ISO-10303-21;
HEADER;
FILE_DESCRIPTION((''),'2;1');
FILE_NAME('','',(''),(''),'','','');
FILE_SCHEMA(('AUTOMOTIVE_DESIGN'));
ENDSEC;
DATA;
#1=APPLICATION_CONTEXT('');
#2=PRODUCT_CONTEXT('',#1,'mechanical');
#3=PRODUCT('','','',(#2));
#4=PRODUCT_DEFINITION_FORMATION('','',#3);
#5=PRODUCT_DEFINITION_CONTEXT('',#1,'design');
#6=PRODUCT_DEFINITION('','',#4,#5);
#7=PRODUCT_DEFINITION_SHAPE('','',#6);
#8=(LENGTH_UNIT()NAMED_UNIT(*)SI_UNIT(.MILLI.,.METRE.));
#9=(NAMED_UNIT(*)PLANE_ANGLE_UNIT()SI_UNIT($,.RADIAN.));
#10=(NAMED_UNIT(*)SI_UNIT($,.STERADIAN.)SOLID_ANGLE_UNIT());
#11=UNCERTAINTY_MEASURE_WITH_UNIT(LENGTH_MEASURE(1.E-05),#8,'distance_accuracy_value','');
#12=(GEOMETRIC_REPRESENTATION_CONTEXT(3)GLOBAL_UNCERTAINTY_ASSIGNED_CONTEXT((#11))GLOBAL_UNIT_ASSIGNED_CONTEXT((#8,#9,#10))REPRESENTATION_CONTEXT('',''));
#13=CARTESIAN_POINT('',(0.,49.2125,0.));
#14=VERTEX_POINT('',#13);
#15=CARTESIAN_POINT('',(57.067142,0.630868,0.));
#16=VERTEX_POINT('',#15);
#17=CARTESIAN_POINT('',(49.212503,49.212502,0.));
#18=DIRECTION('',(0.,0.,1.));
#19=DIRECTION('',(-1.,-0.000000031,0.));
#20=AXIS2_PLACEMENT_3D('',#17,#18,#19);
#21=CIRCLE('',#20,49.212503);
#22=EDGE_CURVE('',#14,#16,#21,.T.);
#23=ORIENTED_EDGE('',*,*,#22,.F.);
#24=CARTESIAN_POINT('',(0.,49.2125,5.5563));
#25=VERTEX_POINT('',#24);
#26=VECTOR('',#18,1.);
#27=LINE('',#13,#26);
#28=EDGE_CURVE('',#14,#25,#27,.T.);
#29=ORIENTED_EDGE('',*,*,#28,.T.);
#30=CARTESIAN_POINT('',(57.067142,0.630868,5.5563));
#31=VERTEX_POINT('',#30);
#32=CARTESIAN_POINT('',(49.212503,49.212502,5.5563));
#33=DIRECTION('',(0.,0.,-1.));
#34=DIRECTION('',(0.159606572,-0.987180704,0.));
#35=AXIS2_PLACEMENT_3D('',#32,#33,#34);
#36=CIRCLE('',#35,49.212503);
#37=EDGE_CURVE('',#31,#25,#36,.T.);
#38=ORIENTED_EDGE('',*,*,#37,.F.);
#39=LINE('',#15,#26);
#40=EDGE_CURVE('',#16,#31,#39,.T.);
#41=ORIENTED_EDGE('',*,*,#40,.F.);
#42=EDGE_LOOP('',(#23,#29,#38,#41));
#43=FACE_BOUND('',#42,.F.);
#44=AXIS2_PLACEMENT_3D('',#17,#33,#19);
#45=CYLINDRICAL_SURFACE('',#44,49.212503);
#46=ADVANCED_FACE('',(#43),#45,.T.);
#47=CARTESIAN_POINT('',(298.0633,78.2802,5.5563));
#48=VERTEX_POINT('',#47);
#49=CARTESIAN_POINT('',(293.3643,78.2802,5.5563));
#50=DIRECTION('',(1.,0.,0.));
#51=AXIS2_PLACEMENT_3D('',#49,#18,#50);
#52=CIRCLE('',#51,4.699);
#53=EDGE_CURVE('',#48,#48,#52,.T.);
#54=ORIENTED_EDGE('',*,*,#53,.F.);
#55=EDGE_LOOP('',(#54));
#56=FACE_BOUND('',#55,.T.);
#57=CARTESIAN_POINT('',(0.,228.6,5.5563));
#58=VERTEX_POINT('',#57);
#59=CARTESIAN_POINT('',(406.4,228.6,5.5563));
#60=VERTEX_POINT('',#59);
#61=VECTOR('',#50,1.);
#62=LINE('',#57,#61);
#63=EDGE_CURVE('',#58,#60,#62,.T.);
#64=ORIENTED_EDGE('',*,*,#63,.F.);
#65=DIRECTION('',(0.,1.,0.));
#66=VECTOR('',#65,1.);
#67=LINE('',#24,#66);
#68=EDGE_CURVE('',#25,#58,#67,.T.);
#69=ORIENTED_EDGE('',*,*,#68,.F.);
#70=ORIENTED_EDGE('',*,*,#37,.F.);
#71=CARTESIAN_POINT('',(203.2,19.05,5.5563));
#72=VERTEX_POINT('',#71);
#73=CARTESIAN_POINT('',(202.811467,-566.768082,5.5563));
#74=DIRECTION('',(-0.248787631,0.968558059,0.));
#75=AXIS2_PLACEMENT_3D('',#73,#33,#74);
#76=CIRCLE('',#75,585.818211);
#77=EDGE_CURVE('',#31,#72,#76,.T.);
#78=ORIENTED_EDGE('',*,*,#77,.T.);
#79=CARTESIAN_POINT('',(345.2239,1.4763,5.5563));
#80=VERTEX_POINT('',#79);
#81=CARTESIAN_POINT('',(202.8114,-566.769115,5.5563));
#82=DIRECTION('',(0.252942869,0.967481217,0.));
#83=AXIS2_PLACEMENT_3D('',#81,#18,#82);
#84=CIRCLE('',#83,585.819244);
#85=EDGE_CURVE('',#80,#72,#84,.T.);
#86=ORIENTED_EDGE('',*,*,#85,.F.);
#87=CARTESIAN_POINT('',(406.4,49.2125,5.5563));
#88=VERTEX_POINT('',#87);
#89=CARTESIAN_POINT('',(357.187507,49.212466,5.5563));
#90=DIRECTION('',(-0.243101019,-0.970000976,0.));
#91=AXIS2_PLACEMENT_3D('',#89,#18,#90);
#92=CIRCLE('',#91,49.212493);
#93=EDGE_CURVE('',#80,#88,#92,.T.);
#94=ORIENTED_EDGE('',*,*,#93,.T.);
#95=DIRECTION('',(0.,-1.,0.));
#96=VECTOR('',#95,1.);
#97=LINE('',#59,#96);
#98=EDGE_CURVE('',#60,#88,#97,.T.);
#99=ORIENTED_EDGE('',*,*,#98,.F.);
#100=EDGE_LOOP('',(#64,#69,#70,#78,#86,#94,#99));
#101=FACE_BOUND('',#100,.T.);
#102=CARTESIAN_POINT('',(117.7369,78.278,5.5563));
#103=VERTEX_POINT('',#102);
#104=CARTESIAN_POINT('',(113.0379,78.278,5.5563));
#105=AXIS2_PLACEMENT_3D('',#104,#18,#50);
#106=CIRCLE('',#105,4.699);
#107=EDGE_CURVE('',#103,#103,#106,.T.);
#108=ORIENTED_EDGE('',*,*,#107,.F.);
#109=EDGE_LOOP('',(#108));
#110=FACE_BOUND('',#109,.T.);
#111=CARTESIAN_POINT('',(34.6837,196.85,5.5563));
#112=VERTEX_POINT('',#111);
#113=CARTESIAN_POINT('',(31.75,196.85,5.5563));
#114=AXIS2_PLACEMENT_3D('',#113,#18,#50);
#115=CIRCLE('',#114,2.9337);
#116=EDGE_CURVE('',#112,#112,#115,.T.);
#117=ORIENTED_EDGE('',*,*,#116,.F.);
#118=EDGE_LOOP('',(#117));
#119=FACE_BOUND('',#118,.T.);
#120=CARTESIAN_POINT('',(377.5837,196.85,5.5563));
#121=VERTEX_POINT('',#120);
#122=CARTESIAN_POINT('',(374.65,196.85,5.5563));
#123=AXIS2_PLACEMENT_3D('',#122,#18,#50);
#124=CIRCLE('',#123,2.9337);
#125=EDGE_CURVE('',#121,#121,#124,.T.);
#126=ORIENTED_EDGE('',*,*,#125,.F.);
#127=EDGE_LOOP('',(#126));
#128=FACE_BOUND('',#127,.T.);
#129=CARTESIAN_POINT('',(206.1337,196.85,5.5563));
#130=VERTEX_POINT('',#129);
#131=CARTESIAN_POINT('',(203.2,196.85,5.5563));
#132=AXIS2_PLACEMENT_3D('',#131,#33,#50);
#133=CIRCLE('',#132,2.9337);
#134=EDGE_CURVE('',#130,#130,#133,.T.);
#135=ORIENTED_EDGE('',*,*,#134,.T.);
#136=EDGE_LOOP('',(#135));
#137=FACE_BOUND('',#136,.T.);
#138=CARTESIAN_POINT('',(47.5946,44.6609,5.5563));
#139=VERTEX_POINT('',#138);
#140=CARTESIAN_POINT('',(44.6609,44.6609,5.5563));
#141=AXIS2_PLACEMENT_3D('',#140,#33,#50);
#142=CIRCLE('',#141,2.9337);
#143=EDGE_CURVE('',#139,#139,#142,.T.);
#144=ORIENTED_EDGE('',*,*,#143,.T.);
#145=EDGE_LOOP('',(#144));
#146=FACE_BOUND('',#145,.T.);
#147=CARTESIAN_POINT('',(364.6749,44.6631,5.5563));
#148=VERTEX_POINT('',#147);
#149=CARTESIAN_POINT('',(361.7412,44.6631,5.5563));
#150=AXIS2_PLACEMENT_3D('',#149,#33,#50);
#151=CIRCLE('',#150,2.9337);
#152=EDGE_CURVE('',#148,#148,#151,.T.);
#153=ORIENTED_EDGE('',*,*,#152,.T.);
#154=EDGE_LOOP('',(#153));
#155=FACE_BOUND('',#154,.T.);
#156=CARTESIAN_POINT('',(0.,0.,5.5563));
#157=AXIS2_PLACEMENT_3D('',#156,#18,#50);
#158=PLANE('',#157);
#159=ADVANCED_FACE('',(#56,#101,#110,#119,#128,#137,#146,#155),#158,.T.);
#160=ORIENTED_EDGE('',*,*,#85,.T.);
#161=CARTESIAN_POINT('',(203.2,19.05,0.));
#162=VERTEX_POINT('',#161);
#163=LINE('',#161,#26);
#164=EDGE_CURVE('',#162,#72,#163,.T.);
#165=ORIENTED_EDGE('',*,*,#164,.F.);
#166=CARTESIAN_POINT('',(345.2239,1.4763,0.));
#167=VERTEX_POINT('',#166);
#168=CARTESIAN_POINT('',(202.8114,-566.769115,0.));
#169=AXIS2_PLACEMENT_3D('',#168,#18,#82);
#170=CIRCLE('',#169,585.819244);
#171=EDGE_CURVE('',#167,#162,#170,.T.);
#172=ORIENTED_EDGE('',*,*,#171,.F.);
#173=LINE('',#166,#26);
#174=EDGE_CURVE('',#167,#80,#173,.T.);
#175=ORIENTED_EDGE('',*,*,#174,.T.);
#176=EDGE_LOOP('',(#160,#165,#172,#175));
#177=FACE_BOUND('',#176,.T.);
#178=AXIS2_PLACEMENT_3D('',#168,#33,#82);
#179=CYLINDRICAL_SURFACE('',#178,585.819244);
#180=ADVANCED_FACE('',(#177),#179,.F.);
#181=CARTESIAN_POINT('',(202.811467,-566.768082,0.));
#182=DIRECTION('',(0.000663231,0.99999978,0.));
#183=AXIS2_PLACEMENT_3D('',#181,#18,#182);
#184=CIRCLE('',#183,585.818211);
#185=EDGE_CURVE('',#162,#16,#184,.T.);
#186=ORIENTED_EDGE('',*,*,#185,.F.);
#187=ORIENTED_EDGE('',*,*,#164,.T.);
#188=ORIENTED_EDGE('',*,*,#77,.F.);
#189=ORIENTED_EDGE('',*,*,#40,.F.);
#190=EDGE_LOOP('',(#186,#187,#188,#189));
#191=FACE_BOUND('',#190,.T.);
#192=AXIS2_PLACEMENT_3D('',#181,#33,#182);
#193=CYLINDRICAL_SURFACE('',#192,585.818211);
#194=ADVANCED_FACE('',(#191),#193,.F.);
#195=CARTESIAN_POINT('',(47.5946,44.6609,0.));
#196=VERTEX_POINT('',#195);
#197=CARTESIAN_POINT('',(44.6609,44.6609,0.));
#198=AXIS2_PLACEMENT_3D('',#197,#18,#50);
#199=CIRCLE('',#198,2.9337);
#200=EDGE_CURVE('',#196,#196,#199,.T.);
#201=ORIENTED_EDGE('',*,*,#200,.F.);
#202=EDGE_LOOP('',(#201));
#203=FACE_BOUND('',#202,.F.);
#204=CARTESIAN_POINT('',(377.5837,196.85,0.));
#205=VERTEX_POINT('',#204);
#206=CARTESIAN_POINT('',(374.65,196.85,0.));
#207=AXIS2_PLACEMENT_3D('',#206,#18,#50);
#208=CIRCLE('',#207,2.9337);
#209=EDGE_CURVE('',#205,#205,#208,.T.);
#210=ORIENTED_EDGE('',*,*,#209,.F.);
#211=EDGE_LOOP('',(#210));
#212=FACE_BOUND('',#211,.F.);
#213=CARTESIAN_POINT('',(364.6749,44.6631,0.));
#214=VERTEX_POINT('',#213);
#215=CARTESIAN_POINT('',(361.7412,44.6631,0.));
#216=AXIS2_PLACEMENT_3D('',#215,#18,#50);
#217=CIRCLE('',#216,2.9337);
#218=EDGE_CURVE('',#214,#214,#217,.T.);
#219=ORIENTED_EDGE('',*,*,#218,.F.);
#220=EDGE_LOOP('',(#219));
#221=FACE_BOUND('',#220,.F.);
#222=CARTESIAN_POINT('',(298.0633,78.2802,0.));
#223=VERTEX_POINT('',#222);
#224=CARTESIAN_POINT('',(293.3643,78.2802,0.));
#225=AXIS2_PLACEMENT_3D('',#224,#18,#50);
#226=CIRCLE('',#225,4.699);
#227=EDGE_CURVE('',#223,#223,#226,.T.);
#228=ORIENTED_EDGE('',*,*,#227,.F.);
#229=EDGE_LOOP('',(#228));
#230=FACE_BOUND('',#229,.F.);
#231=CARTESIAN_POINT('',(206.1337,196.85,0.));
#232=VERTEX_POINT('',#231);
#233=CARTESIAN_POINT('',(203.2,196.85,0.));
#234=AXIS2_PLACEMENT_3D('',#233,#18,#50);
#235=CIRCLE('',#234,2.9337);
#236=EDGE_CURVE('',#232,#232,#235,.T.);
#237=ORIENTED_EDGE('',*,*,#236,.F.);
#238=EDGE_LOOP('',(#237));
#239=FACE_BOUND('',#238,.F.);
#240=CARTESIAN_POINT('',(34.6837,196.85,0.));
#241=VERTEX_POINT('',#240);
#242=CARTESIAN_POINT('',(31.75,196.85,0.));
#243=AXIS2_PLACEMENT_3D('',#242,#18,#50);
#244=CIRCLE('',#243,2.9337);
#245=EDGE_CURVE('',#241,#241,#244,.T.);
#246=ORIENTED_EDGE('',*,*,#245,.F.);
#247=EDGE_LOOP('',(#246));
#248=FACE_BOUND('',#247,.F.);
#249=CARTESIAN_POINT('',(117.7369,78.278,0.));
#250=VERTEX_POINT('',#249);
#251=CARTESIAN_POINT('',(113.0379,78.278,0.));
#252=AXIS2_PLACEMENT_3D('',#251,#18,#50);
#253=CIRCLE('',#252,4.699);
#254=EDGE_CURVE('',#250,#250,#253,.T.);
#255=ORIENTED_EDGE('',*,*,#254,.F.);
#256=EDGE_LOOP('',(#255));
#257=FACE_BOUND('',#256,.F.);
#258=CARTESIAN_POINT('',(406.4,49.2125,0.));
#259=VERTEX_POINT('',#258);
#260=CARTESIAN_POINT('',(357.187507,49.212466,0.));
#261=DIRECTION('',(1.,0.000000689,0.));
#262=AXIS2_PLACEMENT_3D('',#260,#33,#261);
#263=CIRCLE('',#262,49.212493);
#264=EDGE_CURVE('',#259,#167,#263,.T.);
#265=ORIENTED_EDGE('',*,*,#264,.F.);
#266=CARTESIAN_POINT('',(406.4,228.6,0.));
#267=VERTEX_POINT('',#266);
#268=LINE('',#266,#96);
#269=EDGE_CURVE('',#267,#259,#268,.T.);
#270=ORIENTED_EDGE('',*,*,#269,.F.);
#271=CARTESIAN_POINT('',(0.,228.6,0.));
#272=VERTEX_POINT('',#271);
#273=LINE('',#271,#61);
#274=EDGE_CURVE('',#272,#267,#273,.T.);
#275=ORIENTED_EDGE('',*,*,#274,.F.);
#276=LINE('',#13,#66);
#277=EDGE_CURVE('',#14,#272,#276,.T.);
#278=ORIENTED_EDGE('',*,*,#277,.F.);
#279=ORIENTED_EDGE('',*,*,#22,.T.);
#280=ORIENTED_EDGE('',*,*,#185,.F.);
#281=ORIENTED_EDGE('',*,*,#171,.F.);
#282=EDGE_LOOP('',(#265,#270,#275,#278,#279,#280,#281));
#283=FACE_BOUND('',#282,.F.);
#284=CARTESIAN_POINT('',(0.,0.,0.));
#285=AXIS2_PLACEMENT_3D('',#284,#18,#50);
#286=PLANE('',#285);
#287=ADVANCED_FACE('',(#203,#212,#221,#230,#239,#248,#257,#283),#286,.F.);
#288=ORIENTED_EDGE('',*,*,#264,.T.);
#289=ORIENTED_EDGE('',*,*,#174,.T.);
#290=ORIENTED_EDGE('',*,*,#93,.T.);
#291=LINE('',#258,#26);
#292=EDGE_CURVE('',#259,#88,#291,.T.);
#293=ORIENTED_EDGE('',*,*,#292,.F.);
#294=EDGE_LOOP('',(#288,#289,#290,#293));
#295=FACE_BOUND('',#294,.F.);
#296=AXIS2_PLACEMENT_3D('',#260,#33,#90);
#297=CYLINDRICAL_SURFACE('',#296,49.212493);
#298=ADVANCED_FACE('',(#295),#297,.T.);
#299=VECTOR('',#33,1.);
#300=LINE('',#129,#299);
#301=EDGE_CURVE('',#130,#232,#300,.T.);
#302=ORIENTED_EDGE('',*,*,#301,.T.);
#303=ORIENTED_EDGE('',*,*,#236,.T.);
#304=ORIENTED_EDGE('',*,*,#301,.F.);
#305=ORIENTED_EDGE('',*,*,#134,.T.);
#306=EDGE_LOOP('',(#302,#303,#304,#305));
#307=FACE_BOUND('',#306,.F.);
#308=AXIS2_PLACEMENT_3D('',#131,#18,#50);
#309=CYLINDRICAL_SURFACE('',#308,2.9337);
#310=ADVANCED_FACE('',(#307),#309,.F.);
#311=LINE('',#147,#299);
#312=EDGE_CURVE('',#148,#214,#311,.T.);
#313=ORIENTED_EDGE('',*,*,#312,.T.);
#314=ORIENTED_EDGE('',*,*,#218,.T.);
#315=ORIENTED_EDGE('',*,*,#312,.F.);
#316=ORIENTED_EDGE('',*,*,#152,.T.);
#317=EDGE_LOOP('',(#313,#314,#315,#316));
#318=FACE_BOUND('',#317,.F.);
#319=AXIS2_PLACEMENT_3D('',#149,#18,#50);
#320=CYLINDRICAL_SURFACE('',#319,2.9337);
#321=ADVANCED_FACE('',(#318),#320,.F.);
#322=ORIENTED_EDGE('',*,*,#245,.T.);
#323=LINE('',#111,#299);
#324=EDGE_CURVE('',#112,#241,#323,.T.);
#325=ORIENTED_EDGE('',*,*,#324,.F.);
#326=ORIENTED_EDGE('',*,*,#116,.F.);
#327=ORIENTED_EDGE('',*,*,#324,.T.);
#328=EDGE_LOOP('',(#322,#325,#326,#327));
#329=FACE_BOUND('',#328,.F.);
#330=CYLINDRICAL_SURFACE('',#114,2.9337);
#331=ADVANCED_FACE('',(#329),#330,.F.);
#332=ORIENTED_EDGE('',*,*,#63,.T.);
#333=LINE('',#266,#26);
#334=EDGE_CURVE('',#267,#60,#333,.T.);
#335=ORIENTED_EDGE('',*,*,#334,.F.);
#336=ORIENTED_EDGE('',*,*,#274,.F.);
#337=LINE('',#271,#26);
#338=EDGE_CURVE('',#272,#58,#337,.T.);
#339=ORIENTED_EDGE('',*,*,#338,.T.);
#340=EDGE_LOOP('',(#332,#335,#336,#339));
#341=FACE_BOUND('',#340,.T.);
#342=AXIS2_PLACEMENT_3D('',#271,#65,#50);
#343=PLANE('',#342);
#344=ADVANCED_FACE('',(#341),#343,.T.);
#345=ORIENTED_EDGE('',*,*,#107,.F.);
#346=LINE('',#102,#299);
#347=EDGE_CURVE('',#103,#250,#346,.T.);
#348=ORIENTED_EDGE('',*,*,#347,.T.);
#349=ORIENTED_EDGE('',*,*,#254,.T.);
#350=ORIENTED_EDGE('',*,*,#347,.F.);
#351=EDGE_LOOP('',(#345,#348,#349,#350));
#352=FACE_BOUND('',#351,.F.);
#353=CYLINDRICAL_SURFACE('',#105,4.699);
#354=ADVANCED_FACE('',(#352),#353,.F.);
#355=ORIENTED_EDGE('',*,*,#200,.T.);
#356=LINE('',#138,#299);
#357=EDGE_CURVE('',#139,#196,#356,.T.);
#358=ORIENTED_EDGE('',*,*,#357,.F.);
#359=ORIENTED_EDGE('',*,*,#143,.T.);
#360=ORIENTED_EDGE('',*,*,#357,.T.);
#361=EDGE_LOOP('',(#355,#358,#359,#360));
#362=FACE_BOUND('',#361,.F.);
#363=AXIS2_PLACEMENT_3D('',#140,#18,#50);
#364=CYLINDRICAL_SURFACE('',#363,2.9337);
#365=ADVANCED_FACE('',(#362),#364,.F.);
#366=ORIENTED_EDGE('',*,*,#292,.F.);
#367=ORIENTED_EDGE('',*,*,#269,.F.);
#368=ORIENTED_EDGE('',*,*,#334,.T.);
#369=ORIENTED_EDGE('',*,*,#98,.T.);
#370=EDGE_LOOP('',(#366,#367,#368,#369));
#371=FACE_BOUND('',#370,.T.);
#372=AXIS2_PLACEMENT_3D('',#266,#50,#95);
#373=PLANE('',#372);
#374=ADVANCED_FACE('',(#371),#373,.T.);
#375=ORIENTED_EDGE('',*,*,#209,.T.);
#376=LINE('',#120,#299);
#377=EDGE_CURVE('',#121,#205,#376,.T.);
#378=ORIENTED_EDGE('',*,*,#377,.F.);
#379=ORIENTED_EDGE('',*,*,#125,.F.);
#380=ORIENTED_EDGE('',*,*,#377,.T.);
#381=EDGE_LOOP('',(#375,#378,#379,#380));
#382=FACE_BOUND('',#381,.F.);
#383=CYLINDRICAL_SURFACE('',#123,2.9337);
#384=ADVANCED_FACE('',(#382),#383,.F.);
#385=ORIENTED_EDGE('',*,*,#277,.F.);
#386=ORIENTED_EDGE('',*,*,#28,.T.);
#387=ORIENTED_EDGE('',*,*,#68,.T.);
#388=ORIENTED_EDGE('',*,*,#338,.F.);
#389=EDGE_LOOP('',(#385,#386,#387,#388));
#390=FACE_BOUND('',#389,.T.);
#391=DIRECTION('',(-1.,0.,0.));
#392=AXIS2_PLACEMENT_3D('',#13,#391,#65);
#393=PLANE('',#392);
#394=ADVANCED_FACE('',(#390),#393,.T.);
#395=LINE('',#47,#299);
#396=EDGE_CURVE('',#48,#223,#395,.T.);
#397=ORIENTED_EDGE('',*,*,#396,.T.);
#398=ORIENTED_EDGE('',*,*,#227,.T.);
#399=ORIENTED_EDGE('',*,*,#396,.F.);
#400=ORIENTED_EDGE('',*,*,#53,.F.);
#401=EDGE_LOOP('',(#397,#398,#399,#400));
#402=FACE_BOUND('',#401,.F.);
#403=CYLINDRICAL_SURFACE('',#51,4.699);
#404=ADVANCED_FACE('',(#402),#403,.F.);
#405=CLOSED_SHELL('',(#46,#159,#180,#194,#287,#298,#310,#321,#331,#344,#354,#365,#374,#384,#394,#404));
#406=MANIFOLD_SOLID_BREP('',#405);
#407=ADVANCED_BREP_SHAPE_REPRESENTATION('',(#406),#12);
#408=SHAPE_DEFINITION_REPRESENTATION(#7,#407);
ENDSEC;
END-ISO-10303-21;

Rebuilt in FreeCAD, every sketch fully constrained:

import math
import FreeCAD as App
import Part
import Sketcher

V = App.Vector
Q = App.Units.Quantity

doc = App.newDocument("Part")
body = doc.addObject("PartDesign::Body", "Body")

# Sketch on XY plane
sketch1 = body.newObject("Sketcher::SketchObject", "Sketch")
sketch1.AttachmentSupport = (doc.getObject("XY_Plane"), [""])
sketch1.MapMode = "FlatFace"
sketch1.addGeometry([
    Part.ArcOfCircle(Part.Circle(V(49, 49, 0), V(0, 0, 1), 49), math.radians(180), math.radians(279)),  # 0
    Part.ArcOfCircle(Part.Circle(V(203, -567, 0), V(0, 0, 1), 586), math.radians(89.96), math.radians(104.41)),  # 1
    Part.ArcOfCircle(Part.Circle(V(203, -567, 0), V(0, 0, 1), 586), math.radians(75.93), math.radians(89.96)),  # 2
    Part.ArcOfCircle(Part.Circle(V(357, 49, 0), V(0, 0, 1), 49), math.radians(-104), math.radians(0)),  # 3
    Part.LineSegment(V(406, 49, 0), V(406, 229, 0)),  # 4
    Part.LineSegment(V(406, 229, 0), V(0, 229, 0)),  # 5
    Part.LineSegment(V(0, 229, 0), V(0, 49, 0)),  # 6
], False)
sketch1.addConstraint([
    Sketcher.Constraint("Coincident", 0, 2, 1, 2),
    Sketcher.Constraint("Coincident", 1, 1, 2, 2),
    Sketcher.Constraint("Tangent", 2, 1, 3, 1),
    Sketcher.Constraint("Tangent", 3, 2, 4, 1),
    Sketcher.Constraint("Coincident", 4, 2, 5, 1),
    Sketcher.Constraint("Coincident", 5, 2, 6, 1),
    Sketcher.Constraint("Tangent", 6, 2, 0, 1),
    Sketcher.Constraint("Vertical", 4),
    Sketcher.Constraint("Horizontal", 5),
    Sketcher.Constraint("Vertical", 6),
    Sketcher.Constraint("Coincident", 2, 3, 1, 3),
    Sketcher.Constraint("Equal", 0, 3),
    Sketcher.Constraint("PointOnObject", 5, 2, -2),
    Sketcher.Constraint("Horizontal", 0, 3, 3, 3),
    Sketcher.Constraint("DistanceX", 5, 2, 5, 1, Q("16 in")),
    Sketcher.Constraint("DistanceX", -1, 1, 1, 1, Q("8 in")),
    Sketcher.Constraint("DistanceY", -1, 1, 4, 2, Q("9 in")),
    Sketcher.Constraint("Radius", 0, Q("1.9375 in")),
    Sketcher.Constraint("DistanceY", 4, 1, 4, 2, Q("7.0625 in")),
    Sketcher.Constraint("DistanceY", -1, 1, 1, 1, Q("0.75 in")),
    Sketcher.Constraint("Radius", 1, 585.8187),
])
pad1 = body.newObject("PartDesign::Pad", "Pad")
pad1.Profile = sketch1
pad1.Length = Q("0.218752 in")

# Sketch on XY plane
sketch2 = body.newObject("Sketcher::SketchObject", "Sketch001")
sketch2.AttachmentSupport = (doc.getObject("XY_Plane"), [""])
sketch2.MapMode = "FlatFace"
sketch2.AttachmentOffset = App.Placement(V(0, 0, 0.218752 * 25.4), App.Rotation())
sketch2.addGeometry([
    Part.Circle(V(44.7, 44.7, 0), V(0, 0, 1), 2.9),
    Part.Circle(V(361.7, 44.7, 0), V(0, 0, 1), 2.9),
], False)
sketch2.addConstraint([
    Sketcher.Constraint("Equal", 0, 1),
    Sketcher.Constraint("Diameter", 0, Q("0.231 in")),
    Sketcher.Constraint("DistanceX", -1, 1, 0, 3, Q("1.7583 in")),
    Sketcher.Constraint("DistanceY", -1, 1, 0, 3, Q("1.7583 in")),
    Sketcher.Constraint("DistanceY", -1, 1, 1, 3, Q("1.7584 in")),
    Sketcher.Constraint("DistanceX", -1, 1, 1, 3, 361.7412),
])
pocket1 = body.newObject("PartDesign::Pocket", "Pocket")
pocket1.Profile = sketch2
pocket1.Type = "ThroughAll"

# Sketch on XY plane
sketch3 = body.newObject("Sketcher::SketchObject", "Sketch002")
sketch3.AttachmentSupport = (doc.getObject("XY_Plane"), [""])
sketch3.MapMode = "FlatFace"
sketch3.AttachmentOffset = App.Placement(V(0, 0, 0.218752 * 25.4), App.Rotation())
sketch3.addGeometry([
    Part.Circle(V(31.8, 196.8, 0), V(0, 0, 1), 2.9),
    Part.Circle(V(203.2, 196.8, 0), V(0, 0, 1), 2.9),
    Part.Circle(V(374.6, 196.8, 0), V(0, 0, 1), 2.9),
], False)
sketch3.addConstraint([
    Sketcher.Constraint("Equal", 0, 1),
    Sketcher.Constraint("Equal", 1, 2),
    Sketcher.Constraint("Horizontal", 0, 3, 1, 3),
    Sketcher.Constraint("Horizontal", 1, 3, 2, 3),
    Sketcher.Constraint("Diameter", 0, Q("0.231 in")),
    Sketcher.Constraint("DistanceX", 0, 3, 1, 3, Q("6.75 in")),
    Sketcher.Constraint("DistanceX", 1, 3, 2, 3, Q("6.75 in")),
    Sketcher.Constraint("DistanceX", -1, 1, 1, 3, Q("8 in")),
    Sketcher.Constraint("DistanceY", -1, 1, 0, 3, Q("7.75 in")),
])
pocket2 = body.newObject("PartDesign::Pocket", "Pocket001")
pocket2.Profile = sketch3
pocket2.Length = Q("0.218752 in")

# Sketch on XY plane
sketch4 = body.newObject("Sketcher::SketchObject", "Sketch003")
sketch4.AttachmentSupport = (doc.getObject("XY_Plane"), [""])
sketch4.MapMode = "FlatFace"
sketch4.AttachmentOffset = App.Placement(V(0, 0, 0.218752 * 25.4), App.Rotation())
sketch4.addGeometry([
    Part.Circle(V(293.4, 78.3, 0), V(0, 0, 1), 4.7),
    Part.Circle(V(113, 78.3, 0), V(0, 0, 1), 4.7),
], False)
sketch4.addConstraint([
    Sketcher.Constraint("Equal", 0, 1),
    Sketcher.Constraint("Diameter", 0, Q("0.37 in")),
    Sketcher.Constraint("DistanceY", -1, 1, 0, 3, Q("3.0819 in")),
    Sketcher.Constraint("DistanceX", -1, 1, 1, 3, Q("4.4503 in")),
    Sketcher.Constraint("DistanceY", -1, 1, 1, 3, Q("3.0818 in")),
    Sketcher.Constraint("DistanceX", -1, 1, 0, 3, 293.3643),
])
pocket3 = body.newObject("PartDesign::Pocket", "Pocket002")
pocket3.Profile = sketch4
pocket3.Type = "ThroughAll"

doc.recompute()
